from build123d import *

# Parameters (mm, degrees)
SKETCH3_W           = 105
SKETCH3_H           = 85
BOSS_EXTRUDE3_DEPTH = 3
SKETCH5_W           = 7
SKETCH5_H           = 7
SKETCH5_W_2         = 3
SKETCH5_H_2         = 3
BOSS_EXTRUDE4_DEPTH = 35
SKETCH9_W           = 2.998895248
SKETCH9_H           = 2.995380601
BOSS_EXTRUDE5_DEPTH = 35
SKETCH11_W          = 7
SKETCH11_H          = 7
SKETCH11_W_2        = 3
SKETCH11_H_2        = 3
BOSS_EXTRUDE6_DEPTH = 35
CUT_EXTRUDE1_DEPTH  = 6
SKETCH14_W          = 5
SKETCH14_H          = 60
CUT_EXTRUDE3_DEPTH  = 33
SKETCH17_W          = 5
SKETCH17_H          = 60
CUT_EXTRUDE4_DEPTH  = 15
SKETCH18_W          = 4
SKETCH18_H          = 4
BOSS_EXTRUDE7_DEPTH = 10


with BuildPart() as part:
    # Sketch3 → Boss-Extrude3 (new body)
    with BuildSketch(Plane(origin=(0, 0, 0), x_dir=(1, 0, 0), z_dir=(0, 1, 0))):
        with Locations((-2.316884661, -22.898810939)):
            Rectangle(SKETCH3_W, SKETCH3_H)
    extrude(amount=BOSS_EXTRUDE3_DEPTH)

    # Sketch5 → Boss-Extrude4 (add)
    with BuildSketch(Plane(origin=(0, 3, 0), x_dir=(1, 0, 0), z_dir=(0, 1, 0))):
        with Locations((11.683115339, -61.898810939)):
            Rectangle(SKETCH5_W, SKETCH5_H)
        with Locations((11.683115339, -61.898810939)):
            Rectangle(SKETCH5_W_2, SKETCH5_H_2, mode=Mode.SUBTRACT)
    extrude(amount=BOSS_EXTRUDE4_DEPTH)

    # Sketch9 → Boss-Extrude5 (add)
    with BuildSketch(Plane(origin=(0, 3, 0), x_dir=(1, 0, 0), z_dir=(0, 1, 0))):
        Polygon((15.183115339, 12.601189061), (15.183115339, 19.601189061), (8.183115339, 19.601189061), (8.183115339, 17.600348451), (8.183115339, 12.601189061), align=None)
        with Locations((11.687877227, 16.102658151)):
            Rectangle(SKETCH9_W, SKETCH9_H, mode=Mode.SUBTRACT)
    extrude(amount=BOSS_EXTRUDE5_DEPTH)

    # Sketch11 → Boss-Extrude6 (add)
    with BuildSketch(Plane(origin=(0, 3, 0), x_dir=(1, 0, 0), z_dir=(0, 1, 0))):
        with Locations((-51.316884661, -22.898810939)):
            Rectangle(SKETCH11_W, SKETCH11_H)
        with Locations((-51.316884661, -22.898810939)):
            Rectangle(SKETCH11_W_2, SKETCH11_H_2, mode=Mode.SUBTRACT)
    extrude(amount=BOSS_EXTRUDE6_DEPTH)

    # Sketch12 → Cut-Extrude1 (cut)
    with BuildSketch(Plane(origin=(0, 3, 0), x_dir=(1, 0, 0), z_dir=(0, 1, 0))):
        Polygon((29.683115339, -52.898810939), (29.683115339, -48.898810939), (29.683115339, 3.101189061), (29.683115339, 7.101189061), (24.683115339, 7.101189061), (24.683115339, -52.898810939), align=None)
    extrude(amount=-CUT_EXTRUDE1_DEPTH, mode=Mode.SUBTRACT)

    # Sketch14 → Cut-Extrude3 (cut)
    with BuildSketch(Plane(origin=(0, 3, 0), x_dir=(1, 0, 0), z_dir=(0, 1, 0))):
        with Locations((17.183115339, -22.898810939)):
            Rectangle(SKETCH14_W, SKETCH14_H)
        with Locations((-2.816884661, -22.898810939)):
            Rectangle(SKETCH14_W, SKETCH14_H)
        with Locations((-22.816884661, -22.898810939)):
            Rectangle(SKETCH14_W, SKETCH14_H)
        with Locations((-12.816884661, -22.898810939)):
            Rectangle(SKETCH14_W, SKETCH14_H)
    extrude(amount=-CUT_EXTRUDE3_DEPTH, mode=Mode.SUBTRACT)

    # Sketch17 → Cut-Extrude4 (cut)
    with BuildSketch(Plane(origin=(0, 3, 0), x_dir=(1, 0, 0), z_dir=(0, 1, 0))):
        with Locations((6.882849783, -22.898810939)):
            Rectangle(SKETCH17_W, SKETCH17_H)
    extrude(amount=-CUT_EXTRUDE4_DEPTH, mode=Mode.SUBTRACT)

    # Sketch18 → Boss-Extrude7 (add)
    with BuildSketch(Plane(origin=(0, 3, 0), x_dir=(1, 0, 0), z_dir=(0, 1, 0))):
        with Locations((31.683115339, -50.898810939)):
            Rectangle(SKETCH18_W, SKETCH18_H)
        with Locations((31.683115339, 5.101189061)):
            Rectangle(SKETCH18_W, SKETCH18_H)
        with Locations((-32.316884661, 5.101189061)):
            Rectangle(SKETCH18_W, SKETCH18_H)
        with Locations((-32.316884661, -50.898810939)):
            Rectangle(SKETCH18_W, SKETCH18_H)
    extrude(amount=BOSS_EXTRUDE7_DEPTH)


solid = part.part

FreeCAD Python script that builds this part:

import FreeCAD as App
import Part
import Sketcher


def add_polygon(sketch, points):
    """Adds a closed chain of lines whose ends are joined by coincident constraints."""
    first, n = sketch.GeometryCount, len(points)
    for a, b in zip(points, points[1:] + points[:1]):
        sketch.addGeometry(Part.LineSegment(App.Vector(*a, 0), App.Vector(*b, 0)), False)
    for i in range(n):
        sketch.addConstraint(Sketcher.Constraint("Coincident", first + i, 2, first + (i + 1) % n, 1))

doc = App.newDocument("Part")
body = doc.addObject("PartDesign::Body", "Body")

# Sketch on XZ plane
sketch1 = doc.addObject("Sketcher::SketchObject", "Sketch")
body.addObject(sketch1)
sketch1.AttachmentSupport = (doc.XZ_Plane, [""])
sketch1.MapMode = "FlatFace"
add_polygon(sketch1, [(-54.816885, -19.601189), (-54.816885, 65.398811), (50.183115, 65.398811), (50.183115, -19.601189)])  # lines 0-3
sketch1.addConstraint(Sketcher.Constraint("Vertical", 0))
sketch1.addConstraint(Sketcher.Constraint("Horizontal", 1))
sketch1.addConstraint(Sketcher.Constraint("Vertical", 2))
sketch1.addConstraint(Sketcher.Constraint("Horizontal", 3))
sketch1.addConstraint(Sketcher.Constraint("DistanceX", 1, 1, 1, 2, 105.0))
sketch1.addConstraint(Sketcher.Constraint("DistanceY", 0, 1, 0, 2, 85.0))
sketch1.addConstraint(Sketcher.Constraint("DistanceY", -1, 1, 0, 2, 65.398811))
sketch1.addConstraint(Sketcher.Constraint("DistanceX", 0, 2, -1, 1, 54.816885))
pad1 = doc.addObject("PartDesign::Pad", "Pad")
body.addObject(pad1)
pad1.Profile = sketch1
pad1.Length = 3
pad1.Reversed = True

# Sketch on XZ plane
sketch2 = doc.addObject("Sketcher::SketchObject", "Sketch001")
body.addObject(sketch2)
sketch2.AttachmentSupport = (doc.XZ_Plane, [""])
sketch2.MapMode = "FlatFace"
sketch2.AttachmentOffset = App.Placement(App.Vector(0, 0, -3), App.Rotation())
add_polygon(sketch2, [(8.183115, 58.398811), (8.183115, 65.398811), (15.183115, 65.398811), (15.183115, 58.398811)])  # lines 0-3
add_polygon(sketch2, [(13.183115, 63.398811), (10.183115, 63.398811), (10.183115, 60.398811), (13.183115, 60.398811)])  # lines 4-7
sketch2.addConstraint(Sketcher.Constraint("Vertical", 0))
sketch2.addConstraint(Sketcher.Constraint("Horizontal", 1))
sketch2.addConstraint(Sketcher.Constraint("Vertical", 2))
sketch2.addConstraint(Sketcher.Constraint("Horizontal", 3))
sketch2.addConstraint(Sketcher.Constraint("Horizontal", 4))
sketch2.addConstraint(Sketcher.Constraint("Vertical", 5))
sketch2.addConstraint(Sketcher.Constraint("Horizontal", 6))
sketch2.addConstraint(Sketcher.Constraint("Vertical", 7))
sketch2.addConstraint(Sketcher.Constraint("Equal", 3, 0))
sketch2.addConstraint(Sketcher.Constraint("Equal", 6, 5))
sketch2.addConstraint(Sketcher.Constraint("DistanceX", 1, 1, 1, 2, 7.0))
sketch2.addConstraint(Sketcher.Constraint("DistanceX", 4, 2, 4, 1, 3.0))
sketch2.addConstraint(Sketcher.Constraint("DistanceX", 0, 2, 4, 2, 2.0))
sketch2.addConstraint(Sketcher.Constraint("DistanceY", 4, 2, 0, 2, 2.0))
sketch2.addConstraint(Sketcher.Constraint("DistanceY", -1, 1, 0, 2, 65.398811))
sketch2.addConstraint(Sketcher.Constraint("DistanceX", -1, 1, 0, 2, 8.183115))
pad2 = doc.addObject("PartDesign::Pad", "Pad001")
body.addObject(pad2)
pad2.Profile = sketch2
pad2.Length = 35
pad2.Reversed = True

# Sketch on XZ plane
sketch3 = doc.addObject("Sketcher::SketchObject", "Sketch002")
body.addObject(sketch3)
sketch3.AttachmentSupport = (doc.XZ_Plane, [""])
sketch3.MapMode = "FlatFace"
sketch3.AttachmentOffset = App.Placement(App.Vector(0, 0, -3), App.Rotation())
add_polygon(sketch3, [(15.183115, -12.601189), (15.183115, -19.601189), (8.183115, -19.601189), (8.183115, -12.601189)])  # lines 0-3
add_polygon(sketch3, [(13.187325, -14.604968), (10.18843, -14.604968), (10.18843, -17.600348), (13.187325, -17.600348)])  # lines 4-7
sketch3.addConstraint(Sketcher.Constraint("Vertical", 0))
sketch3.addConstraint(Sketcher.Constraint("Horizontal", 1))
sketch3.addConstraint(Sketcher.Constraint("Vertical", 2))
sketch3.addConstraint(Sketcher.Constraint("Horizontal", 3))
sketch3.addConstraint(Sketcher.Constraint("Horizontal", 4))
sketch3.addConstraint(Sketcher.Constraint("Vertical", 5))
sketch3.addConstraint(Sketcher.Constraint("Horizontal", 6))
sketch3.addConstraint(Sketcher.Constraint("Vertical", 7))
sketch3.addConstraint(Sketcher.Constraint("Equal", 3, 0))
sketch3.addConstraint(Sketcher.Constraint("DistanceX", 1, 2, 1, 1, 7.0))
sketch3.addConstraint(Sketcher.Constraint("DistanceY", 5, 2, 5, 1, 2.995381))
sketch3.addConstraint(Sketcher.Constraint("DistanceX", 4, 2, 4, 1, 2.998895))
sketch3.addConstraint(Sketcher.Constraint("DistanceY", 0, 2, -1, 1, 19.601189))
sketch3.addConstraint(Sketcher.Constraint("DistanceX", -1, 1, 4, 2, 10.18843))
sketch3.addConstraint(Sketcher.Constraint("DistanceY", 5, 2, -1, 1, 17.600348))
sketch3.addConstraint(Sketcher.Constraint("DistanceX", 6, 2, 0, 2, 1.99579))
pad3 = doc.addObject("PartDesign::Pad", "Pad002")
body.addObject(pad3)
pad3.Profile = sketch3
pad3.Length = 35
pad3.Reversed = True

# Sketch on XZ plane
sketch4 = doc.addObject("Sketcher::SketchObject", "Sketch003")
body.addObject(sketch4)
sketch4.AttachmentSupport = (doc.XZ_Plane, [""])
sketch4.MapMode = "FlatFace"
sketch4.AttachmentOffset = App.Placement(App.Vector(0, 0, -3), App.Rotation())
add_polygon(sketch4, [(-54.816885, 19.398811), (-54.816885, 26.398811), (-47.816885, 26.398811), (-47.816885, 19.398811)])  # lines 0-3
add_polygon(sketch4, [(-49.816885, 24.398811), (-52.816885, 24.398811), (-52.816885, 21.398811), (-49.816885, 21.398811)])  # lines 4-7
sketch4.addConstraint(Sketcher.Constraint("Vertical", 0))
sketch4.addConstraint(Sketcher.Constraint("Horizontal", 1))
sketch4.addConstraint(Sketcher.Constraint("Vertical", 2))
sketch4.addConstraint(Sketcher.Constraint("Horizontal", 3))
sketch4.addConstraint(Sketcher.Constraint("Horizontal", 4))
sketch4.addConstraint(Sketcher.Constraint("Vertical", 5))
sketch4.addConstraint(Sketcher.Constraint("Horizontal", 6))
sketch4.addConstraint(Sketcher.Constraint("Vertical", 7))
sketch4.addConstraint(Sketcher.Constraint("Equal", 3, 0))
sketch4.addConstraint(Sketcher.Constraint("Equal", 6, 5))
sketch4.addConstraint(Sketcher.Constraint("DistanceX", 1, 1, 1, 2, 7.0))
sketch4.addConstraint(Sketcher.Constraint("DistanceX", 4, 2, 4, 1, 3.0))
sketch4.addConstraint(Sketcher.Constraint("DistanceX", 0, 2, 4, 2, 2.0))
sketch4.addConstraint(Sketcher.Constraint("DistanceY", 4, 2, 0, 2, 2.0))
sketch4.addConstraint(Sketcher.Constraint("DistanceY", -1, 1, 0, 2, 26.398811))
sketch4.addConstraint(Sketcher.Constraint("DistanceX", 0, 2, -1, 1, 54.816885))
pad4 = doc.addObject("PartDesign::Pad", "Pad003")
body.addObject(pad4)
pad4.Profile = sketch4
pad4.Length = 35
pad4.Reversed = True

# Sketch on XZ plane
sketch5 = doc.addObject("Sketcher::SketchObject", "Sketch004")
body.addObject(sketch5)
sketch5.AttachmentSupport = (doc.XZ_Plane, [""])
sketch5.MapMode = "FlatFace"
sketch5.AttachmentOffset = App.Placement(App.Vector(0, 0, -3), App.Rotation())
add_polygon(sketch5, [(29.683115, 52.898811), (29.683115, -7.101189), (24.683115, -7.101189), (24.683115, 52.898811)])  # lines 0-3
sketch5.addConstraint(Sketcher.Constraint("Vertical", 0))
sketch5.addConstraint(Sketcher.Constraint("Horizontal", 1))
sketch5.addConstraint(Sketcher.Constraint("Vertical", 2))
sketch5.addConstraint(Sketcher.Constraint("Horizontal", 3))
sketch5.addConstraint(Sketcher.Constraint("DistanceX", 1, 2, 1, 1, 5.0))
sketch5.addConstraint(Sketcher.Constraint("DistanceY", 0, 2, 0, 1, 60.0))
sketch5.addConstraint(Sketcher.Constraint("DistanceY", 0, 2, -1, 1, 7.101189))
sketch5.addConstraint(Sketcher.Constraint("DistanceX", -1, 1, 0, 2, 29.683115))
pocket1 = doc.addObject("PartDesign::Pocket", "Pocket")
body.addObject(pocket1)
pocket1.Profile = sketch5
pocket1.Length = 6
pocket1.Reversed = True

# Sketch on XZ plane
sketch6 = doc.addObject("Sketcher::SketchObject", "Sketch005")
body.addObject(sketch6)
sketch6.AttachmentSupport = (doc.XZ_Plane, [""])
sketch6.MapMode = "FlatFace"
sketch6.AttachmentOffset = App.Placement(App.Vector(0, 0, -3), App.Rotation())
add_polygon(sketch6, [(14.683115, -7.101189), (14.683115, 52.898811), (19.683115, 52.898811), (19.683115, -7.101189)])  # lines 0-3
add_polygon(sketch6, [(-5.316885, -7.101189), (-5.316885, 52.898811), (-0.316885, 52.898811), (-0.316885, -7.101189)])  # lines 4-7
add_polygon(sketch6, [(-25.316885, -7.101189), (-25.316885, 52.898811), (-20.316885, 52.898811), (-20.316885, -7.101189)])  # lines 8-11
add_polygon(sketch6, [(-15.316885, -7.101189), (-15.316885, 52.898811), (-10.316885, 52.898811), (-10.316885, -7.101189)])  # lines 12-15
sketch6.addConstraint(Sketcher.Constraint("Vertical", 0))
sketch6.addConstraint(Sketcher.Constraint("Horizontal", 1))
sketch6.addConstraint(Sketcher.Constraint("Vertical", 2))
sketch6.addConstraint(Sketcher.Constraint("Horizontal", 3))
sketch6.addConstraint(Sketcher.Constraint("Vertical", 4))
sketch6.addConstraint(Sketcher.Constraint("Horizontal", 5))
sketch6.addConstraint(Sketcher.Constraint("Vertical", 6))
sketch6.addConstraint(Sketcher.Constraint("Horizontal", 7))
sketch6.addConstraint(Sketcher.Constraint("Vertical", 8))
sketch6.addConstraint(Sketcher.Constraint("Horizontal", 9))
sketch6.addConstraint(Sketcher.Constraint("Vertical", 10))
sketch6.addConstraint(Sketcher.Constraint("Horizontal", 11))
sketch6.addConstraint(Sketcher.Constraint("Vertical", 12))
sketch6.addConstraint(Sketcher.Constraint("Horizontal", 13))
sketch6.addConstraint(Sketcher.Constraint("Vertical", 14))
sketch6.addConstraint(Sketcher.Constraint("Horizontal", 15))
sketch6.addConstraint(Sketcher.Constraint("Horizontal", 1, 2, 4, 2))
sketch6.addConstraint(Sketcher.Constraint("Horizontal", 3, 2, 6, 2))
sketch6.addConstraint(Sketcher.Constraint("Horizontal", 5, 2, 8, 2))
sketch6.addConstraint(Sketcher.Constraint("Horizontal", 7, 2, 10, 2))
sketch6.addConstraint(Sketcher.Constraint("Horizontal", 9, 2, 12, 2))
sketch6.addConstraint(Sketcher.Constraint("Horizontal", 11, 2, 14, 2))
sketch6.addConstraint(Sketcher.Constraint("Equal", 3, 5))
sketch6.addConstraint(Sketcher.Constraint("Equal", 7, 9))
sketch6.addConstraint(Sketcher.Constraint("Equal", 11, 13))
sketch6.addConstraint(Sketcher.Constraint("DistanceX", 1, 1, 1, 2, 5.0))
sketch6.addConstraint(Sketcher.Constraint("DistanceY", 0, 1, 0, 2, 60.0))
sketch6.addConstraint(Sketcher.Constraint("DistanceX", 4, 2, 0, 2, 20.0))
sketch6.addConstraint(Sketcher.Constraint("DistanceX", 8, 2, 4, 2, 20.0))
sketch6.addConstraint(Sketcher.Constraint("DistanceX", 9, 2, 12, 2, 5.0))
sketch6.addConstraint(Sketcher.Constraint("DistanceY", -1, 1, 0, 2, 52.898811))
sketch6.addConstraint(Sketcher.Constraint("DistanceX", -1, 1, 0, 2, 14.683115))
pocket2 = doc.addObject("PartDesign::Pocket", "Pocket001")
body.addObject(pocket2)
pocket2.Profile = sketch6
pocket2.Length = 33
pocket2.Reversed = True

# Sketch on XZ plane
sketch7 = doc.addObject("Sketcher::SketchObject", "Sketch006")
body.addObject(sketch7)
sketch7.AttachmentSupport = (doc.XZ_Plane, [""])
sketch7.MapMode = "FlatFace"
sketch7.AttachmentOffset = App.Placement(App.Vector(0, 0, -3), App.Rotation())
add_polygon(sketch7, [(4.38285, -7.101189), (4.38285, 52.898811), (9.38285, 52.898811), (9.38285, -7.101189)])  # lines 0-3
sketch7.addConstraint(Sketcher.Constraint("Vertical", 0))
sketch7.addConstraint(Sketcher.Constraint("Horizontal", 1))
sketch7.addConstraint(Sketcher.Constraint("Vertical", 2))
sketch7.addConstraint(Sketcher.Constraint("Horizontal", 3))
sketch7.addConstraint(Sketcher.Constraint("DistanceX", 1, 1, 1, 2, 5.0))
sketch7.addConstraint(Sketcher.Constraint("DistanceY", 0, 1, 0, 2, 60.0))
sketch7.addConstraint(Sketcher.Constraint("DistanceX", -1, 1, 0, 2, 4.38285))
sketch7.addConstraint(Sketcher.Constraint("DistanceY", -1, 1, 0, 2, 52.898811))
pocket3 = doc.addObject("PartDesign::Pocket", "Pocket002")
body.addObject(pocket3)
pocket3.Profile = sketch7
pocket3.Length = 15
pocket3.Reversed = True

# Sketch on XZ plane
sketch8 = doc.addObject("Sketcher::SketchObject", "Sketch007")
body.addObject(sketch8)
sketch8.AttachmentSupport = (doc.XZ_Plane, [""])
sketch8.MapMode = "FlatFace"
sketch8.AttachmentOffset = App.Placement(App.Vector(0, 0, -3), App.Rotation())
add_polygon(sketch8, [(29.683115, 48.898811), (29.683115, 52.898811), (33.683115, 52.898811), (33.683115, 48.898811)])  # lines 0-3
add_polygon(sketch8, [(29.683115, -7.101189), (29.683115, -3.101189), (33.683115, -3.101189), (33.683115, -7.101189)])  # lines 4-7
add_polygon(sketch8, [(-34.316885, -7.101189), (-34.316885, -3.101189), (-30.316885, -3.101189), (-30.316885, -7.101189)])  # lines 8-11
add_polygon(sketch8, [(-34.316885, 48.898811), (-34.316885, 52.898811), (-30.316885, 52.898811), (-30.316885, 48.898811)])  # lines 12-15
sketch8.addConstraint(Sketcher.Constraint("Vertical", 0))
sketch8.addConstraint(Sketcher.Constraint("Horizontal", 1))
sketch8.addConstraint(Sketcher.Constraint("Vertical", 2))
sketch8.addConstraint(Sketcher.Constraint("Horizontal", 3))
sketch8.addConstraint(Sketcher.Constraint("Vertical", 4))
sketch8.addConstraint(Sketcher.Constraint("Horizontal", 5))
sketch8.addConstraint(Sketcher.Constraint("Vertical", 6))
sketch8.addConstraint(Sketcher.Constraint("Horizontal", 7))
sketch8.addConstraint(Sketcher.Constraint("Vertical", 8))
sketch8.addConstraint(Sketcher.Constraint("Horizontal", 9))
sketch8.addConstraint(Sketcher.Constraint("Vertical", 10))
sketch8.addConstraint(Sketcher.Constraint("Horizontal", 11))
sketch8.addConstraint(Sketcher.Constraint("Vertical", 12))
sketch8.addConstraint(Sketcher.Constraint("Horizontal", 13))
sketch8.addConstraint(Sketcher.Constraint("Vertical", 14))
sketch8.addConstraint(Sketcher.Constraint("Horizontal", 15))
sketch8.addConstraint(Sketcher.Constraint("Horizontal", 5, 2, 8, 2))
sketch8.addConstraint(Sketcher.Constraint("Horizontal", 7, 2, 10, 2))
sketch8.addConstraint(Sketcher.Constraint("Horizontal", 1, 2, 12, 2))
sketch8.addConstraint(Sketcher.Constraint("Horizontal", 3, 2, 14, 2))
sketch8.addConstraint(Sketcher.Constraint("Vertical", 3, 2, 4, 2))
sketch8.addConstraint(Sketcher.Constraint("Vertical", 2, 2, 5, 2))
sketch8.addConstraint(Sketcher.Constraint("Vertical", 11, 2, 12, 2))
sketch8.addConstraint(Sketcher.Constraint("Vertical", 10, 2, 13, 2))
sketch8.addConstraint(Sketcher.Constraint("Equal", 7, 9))
sketch8.addConstraint(Sketcher.Constraint("Equal", 15, 0))
sketch8.addConstraint(Sketcher.Constraint("Equal", 2, 4))
sketch8.addConstraint(Sketcher.Constraint("DistanceX", 1, 1, 1, 2, 4.0))
sketch8.addConstraint(Sketcher.Constraint("DistanceY", 4, 2, 3, 2, 52.0))
sketch8.addConstraint(Sketcher.Constraint("DistanceX", 8, 2, 4, 2, 64.0))
sketch8.addConstraint(Sketcher.Constraint("DistanceY", -1, 1, 0, 2, 52.898811))
sketch8.addConstraint(Sketcher.Constraint("DistanceX", -1, 1, 0, 2, 29.683115))
pad5 = doc.addObject("PartDesign::Pad", "Pad004")
body.addObject(pad5)
pad5.Profile = sketch8
pad5.Length = 10
pad5.Reversed = True

doc.recompute()
